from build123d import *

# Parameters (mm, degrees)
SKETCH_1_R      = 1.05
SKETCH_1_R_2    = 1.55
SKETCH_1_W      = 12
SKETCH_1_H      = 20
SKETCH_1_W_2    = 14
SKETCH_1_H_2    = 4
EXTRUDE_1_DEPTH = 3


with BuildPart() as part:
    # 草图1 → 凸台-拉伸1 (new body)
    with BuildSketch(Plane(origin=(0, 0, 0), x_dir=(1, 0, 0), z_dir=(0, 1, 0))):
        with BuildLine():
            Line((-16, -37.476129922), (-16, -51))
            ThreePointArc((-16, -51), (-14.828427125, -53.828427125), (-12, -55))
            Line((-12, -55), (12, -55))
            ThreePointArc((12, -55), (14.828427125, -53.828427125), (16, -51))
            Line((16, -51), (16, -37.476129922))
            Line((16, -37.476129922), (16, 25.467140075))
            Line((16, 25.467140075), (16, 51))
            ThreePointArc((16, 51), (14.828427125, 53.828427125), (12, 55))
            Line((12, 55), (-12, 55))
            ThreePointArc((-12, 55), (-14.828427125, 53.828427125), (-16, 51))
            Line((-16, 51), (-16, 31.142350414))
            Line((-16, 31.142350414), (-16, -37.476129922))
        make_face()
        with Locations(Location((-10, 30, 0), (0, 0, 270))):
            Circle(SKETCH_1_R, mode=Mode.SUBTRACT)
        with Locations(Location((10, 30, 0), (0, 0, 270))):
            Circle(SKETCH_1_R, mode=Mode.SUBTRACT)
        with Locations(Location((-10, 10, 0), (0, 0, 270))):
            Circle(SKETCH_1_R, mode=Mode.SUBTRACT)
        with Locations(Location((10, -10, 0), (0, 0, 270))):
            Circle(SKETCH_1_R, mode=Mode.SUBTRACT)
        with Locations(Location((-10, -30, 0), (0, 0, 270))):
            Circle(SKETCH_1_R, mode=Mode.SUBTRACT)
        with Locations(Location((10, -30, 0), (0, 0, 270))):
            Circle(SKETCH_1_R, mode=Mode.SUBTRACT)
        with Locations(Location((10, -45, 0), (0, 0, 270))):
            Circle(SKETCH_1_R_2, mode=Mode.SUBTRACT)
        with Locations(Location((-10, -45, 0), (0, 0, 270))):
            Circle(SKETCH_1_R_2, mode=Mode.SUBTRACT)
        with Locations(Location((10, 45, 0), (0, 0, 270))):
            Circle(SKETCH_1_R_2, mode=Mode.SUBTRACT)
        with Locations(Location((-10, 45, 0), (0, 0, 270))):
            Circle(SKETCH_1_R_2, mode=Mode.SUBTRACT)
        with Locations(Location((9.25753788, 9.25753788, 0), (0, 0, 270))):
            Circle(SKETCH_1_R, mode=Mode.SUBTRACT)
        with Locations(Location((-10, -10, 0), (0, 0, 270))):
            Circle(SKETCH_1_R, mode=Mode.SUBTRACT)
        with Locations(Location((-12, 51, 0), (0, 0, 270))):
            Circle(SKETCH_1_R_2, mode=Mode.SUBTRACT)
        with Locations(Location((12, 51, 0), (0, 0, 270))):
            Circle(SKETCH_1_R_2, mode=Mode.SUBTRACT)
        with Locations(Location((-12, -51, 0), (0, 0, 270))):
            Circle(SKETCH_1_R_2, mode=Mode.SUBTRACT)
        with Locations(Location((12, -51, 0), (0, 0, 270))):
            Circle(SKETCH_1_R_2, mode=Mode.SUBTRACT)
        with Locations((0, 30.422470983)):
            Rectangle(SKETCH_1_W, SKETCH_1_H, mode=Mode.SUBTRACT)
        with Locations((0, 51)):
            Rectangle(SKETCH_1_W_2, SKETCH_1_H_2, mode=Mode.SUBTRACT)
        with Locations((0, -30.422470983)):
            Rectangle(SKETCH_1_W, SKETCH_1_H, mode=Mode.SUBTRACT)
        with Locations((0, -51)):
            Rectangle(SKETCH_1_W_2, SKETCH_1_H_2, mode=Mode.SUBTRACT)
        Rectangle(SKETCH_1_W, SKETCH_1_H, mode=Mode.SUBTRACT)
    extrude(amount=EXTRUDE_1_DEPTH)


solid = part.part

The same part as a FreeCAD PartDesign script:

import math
import FreeCAD as App
import Part
import Sketcher
from FreeCAD import Vector
Q = App.Units.Quantity

doc = App.newDocument("Part")
body = doc.addObject("PartDesign::Body", "Body")

sketch1 = body.newObject("Sketcher::SketchObject", "Sketch")
sketch1.AttachmentSupport = (doc.getObject("XZ_Plane"), [""])
sketch1.MapMode = "FlatFace"
sketch1.addGeometry([
    Part.ArcOfCircle(Part.Circle(Vector(-12, 51, 0), Vector(0, 0, 1), 4), math.radians(90), math.radians(180)),
    Part.LineSegment(Vector(-12, 55, 0), Vector(12, 55, 0)),
    Part.ArcOfCircle(Part.Circle(Vector(12, 51, 0), Vector(0, 0, 1), 4), math.radians(0), math.radians(90)),
    Part.LineSegment(Vector(16, 51, 0), Vector(16, -51, 0)),
    Part.ArcOfCircle(Part.Circle(Vector(12, -51, 0), Vector(0, 0, 1), 4), math.radians(-90), math.radians(0)),
    Part.LineSegment(Vector(12, -55, 0), Vector(-12, -55, 0)),
    Part.ArcOfCircle(Part.Circle(Vector(-12, -51, 0), Vector(0, 0, 1), 4), math.radians(180), math.radians(270)),
    Part.LineSegment(Vector(-16, -51, 0), Vector(-16, 51, 0)),
    Part.Circle(Vector(-12, 51, 0), Vector(0, 0, 1), 1.6),
    Part.Circle(Vector(-10, 45, 0), Vector(0, 0, 1), 1.6),
    Part.Circle(Vector(-10, 30, 0), Vector(0, 0, 1), 1.1),
    Part.Circle(Vector(-10, 10, 0), Vector(0, 0, 1), 1.1),
    Part.LineSegment(Vector(7, 53, 0), Vector(-7, 53, 0)),
    Part.LineSegment(Vector(-7, 53, 0), Vector(-7, 49, 0)),
    Part.LineSegment(Vector(-7, 49, 0), Vector(7, 49, 0)),
    Part.LineSegment(Vector(7, 49, 0), Vector(7, 53, 0)),
    Part.LineSegment(Vector(6, 40.4, 0), Vector(-6, 40.4, 0)),
    Part.LineSegment(Vector(-6, 40.4, 0), Vector(-6, 20.4, 0)),
    Part.LineSegment(Vector(-6, 20.4, 0), Vector(6, 20.4, 0)),
    Part.LineSegment(Vector(6, 20.4, 0), Vector(6, 40.4, 0)),
    Part.Circle(Vector(10, 45, 0), Vector(0, 0, 1), 1.6),
    Part.Circle(Vector(12, 51, 0), Vector(0, 0, 1), 1.6),
    Part.Circle(Vector(10, 30, 0), Vector(0, 0, 1), 1.1),
    Part.Circle(Vector(10, 10, 0), Vector(0, 0, 1), 1.1),
    Part.Circle(Vector(-10, -10, 0), Vector(0, 0, 1), 1.1),
    Part.Circle(Vector(-10, -30, 0), Vector(0, 0, 1), 1.1),
    Part.Circle(Vector(-12, -51, 0), Vector(0, 0, 1), 1.6),
    Part.Circle(Vector(-10, -45, 0), Vector(0, 0, 1), 1.6),
    Part.LineSegment(Vector(6, 10, 0), Vector(-6, 10, 0)),
    Part.LineSegment(Vector(-6, 10, 0), Vector(-6, -10, 0)),
    Part.LineSegment(Vector(-6, -10, 0), Vector(6, -10, 0)),
    Part.LineSegment(Vector(6, -10, 0), Vector(6, 10, 0)),
    Part.Circle(Vector(9.3, -9.3, 0), Vector(0, 0, 1), 1.1),
    Part.LineSegment(Vector(6, -20.4, 0), Vector(-6, -20.4, 0)),
    Part.LineSegment(Vector(-6, -20.4, 0), Vector(-6, -40.4, 0)),
    Part.LineSegment(Vector(-6, -40.4, 0), Vector(6, -40.4, 0)),
    Part.LineSegment(Vector(6, -40.4, 0), Vector(6, -20.4, 0)),
    Part.LineSegment(Vector(7, -49, 0), Vector(-7, -49, 0)),
    Part.LineSegment(Vector(-7, -49, 0), Vector(-7, -53, 0)),
    Part.LineSegment(Vector(-7, -53, 0), Vector(7, -53, 0)),
    Part.LineSegment(Vector(7, -53, 0), Vector(7, -49, 0)),
    Part.Circle(Vector(10, -30, 0), Vector(0, 0, 1), 1.1),
    Part.Circle(Vector(10, -45, 0), Vector(0, 0, 1), 1.6),
    Part.Circle(Vector(12, -51, 0), Vector(0, 0, 1), 1.6),
], False)
sketch1.addConstraint([
    Sketcher.Constraint("Tangent", 0, 1, 1, 1),
    Sketcher.Constraint("Tangent", 1, 2, 2, 2),
    Sketcher.Constraint("Tangent", 2, 1, 3, 1),
    Sketcher.Constraint("Tangent", 3, 2, 4, 2),
    Sketcher.Constraint("Tangent", 4, 1, 5, 1),
    Sketcher.Constraint("Tangent", 5, 2, 6, 2),
    Sketcher.Constraint("Tangent", 6, 1, 7, 1),
    Sketcher.Constraint("Tangent", 7, 2, 0, 2),
    Sketcher.Constraint("Coincident", 12, 2, 13, 1),
    Sketcher.Constraint("Coincident", 13, 2, 14, 1),
    Sketcher.Constraint("Coincident", 14, 2, 15, 1),
    Sketcher.Constraint("Coincident", 15, 2, 12, 1),
    Sketcher.Constraint("Coincident", 16, 2, 17, 1),
    Sketcher.Constraint("Coincident", 17, 2, 18, 1),
    Sketcher.Constraint("Coincident", 18, 2, 19, 1),
    Sketcher.Constraint("Coincident", 19, 2, 16, 1),
    Sketcher.Constraint("Coincident", 28, 2, 29, 1),
    Sketcher.Constraint("Coincident", 29, 2, 30, 1),
    Sketcher.Constraint("Coincident", 30, 2, 31, 1),
    Sketcher.Constraint("Coincident", 31, 2, 28, 1),
    Sketcher.Constraint("Coincident", 33, 2, 34, 1),
    Sketcher.Constraint("Coincident", 34, 2, 35, 1),
    Sketcher.Constraint("Coincident", 35, 2, 36, 1),
    Sketcher.Constraint("Coincident", 36, 2, 33, 1),
    Sketcher.Constraint("Coincident", 37, 2, 38, 1),
    Sketcher.Constraint("Coincident", 38, 2, 39, 1),
    Sketcher.Constraint("Coincident", 39, 2, 40, 1),
    Sketcher.Constraint("Coincident", 40, 2, 37, 1),
    Sketcher.Constraint("Horizontal", 1),
    Sketcher.Constraint("Vertical", 3),
    Sketcher.Constraint("Horizontal", 5),
    Sketcher.Constraint("Vertical", 7),
    Sketcher.Constraint("Horizontal", 12),
    Sketcher.Constraint("Vertical", 13),
    Sketcher.Constraint("Horizontal", 14),
    Sketcher.Constraint("Vertical", 15),
    Sketcher.Constraint("Horizontal", 16),
    Sketcher.Constraint("Vertical", 17),
    Sketcher.Constraint("Horizontal", 18),
    Sketcher.Constraint("Vertical", 19),
    Sketcher.Constraint("Horizontal", 28),
    Sketcher.Constraint("Vertical", 29),
    Sketcher.Constraint("Horizontal", 30),
    Sketcher.Constraint("Vertical", 31),
    Sketcher.Constraint("Horizontal", 33),
    Sketcher.Constraint("Vertical", 34),
    Sketcher.Constraint("Horizontal", 35),
    Sketcher.Constraint("Vertical", 36),
    Sketcher.Constraint("Horizontal", 37),
    Sketcher.Constraint("Vertical", 38),
    Sketcher.Constraint("Horizontal", 39),
    Sketcher.Constraint("Vertical", 40),
    Sketcher.Constraint("Coincident", 8, 3, 0, 3),
    Sketcher.Constraint("Coincident", 21, 3, 2, 3),
    Sketcher.Constraint("Coincident", 26, 3, 6, 3),
    Sketcher.Constraint("Coincident", 43, 3, 4, 3),
    Sketcher.Constraint("Equal", 0, 2),
    Sketcher.Constraint("Equal", 2, 4),
    Sketcher.Constraint("Equal", 4, 6),
    Sketcher.Constraint("Equal", 8, 9),
    Sketcher.Constraint("Equal", 10, 11),
    Sketcher.Constraint("Equal", 9, 20),
    Sketcher.Constraint("Equal", 20, 21),
    Sketcher.Constraint("Equal", 11, 22),
    Sketcher.Constraint("Equal", 22, 23),
    Sketcher.Constraint("Equal", 23, 24),
    Sketcher.Constraint("Equal", 24, 25),
    Sketcher.Constraint("Equal", 21, 26),
    Sketcher.Constraint("Equal", 26, 27),
    Sketcher.Constraint("Equal", 25, 32),
    Sketcher.Constraint("Equal", 32, 41),
    Sketcher.Constraint("Equal", 27, 42),
    Sketcher.Constraint("Equal", 42, 43),
    Sketcher.Constraint("Symmetric", 0, 3, 4, 3, -1, 1),
    Sketcher.Constraint("Symmetric", 23, 3, 24, 3, -1, 1),
    Sketcher.Constraint("Symmetric", 22, 3, 25, 3, -1, 1),
    Sketcher.Constraint("Symmetric", 20, 3, 27, 3, -1, 1),
    Sketcher.Constraint("Symmetric", 10, 3, 41, 3, -1, 1),
    Sketcher.Constraint("Symmetric", 9, 3, 42, 3, -1, 1),
    Sketcher.Constraint("Symmetric", 28, 2, 30, 2, -1, 1),
    Sketcher.Constraint("Symmetric", 18, 2, 33, 2, -1, 1),
    Sketcher.Constraint("Symmetric", 16, 2, 35, 2, -1, 1),
    Sketcher.Constraint("Symmetric", 14, 2, 37, 2, -1, 1),
    Sketcher.Constraint("Symmetric", 12, 2, 39, 2, -1, 1),
    Sketcher.Constraint("Symmetric", 9, 3, 20, 3, -2),
    Sketcher.Constraint("Symmetric", 10, 3, 22, 3, -2),
    Sketcher.Constraint("Symmetric", 11, 3, 23, 3, -2),
    Sketcher.Constraint("Horizontal", 23, 3, 28, 2),
    Sketcher.Constraint("Vertical", 9, 3, 10, 3),
    Sketcher.Constraint("Vertical", 10, 3, 11, 3),
    Sketcher.Constraint("Vertical", 17, 2, 28, 2),
    Sketcher.Constraint("Vertical", 19, 2, 30, 2),
    Sketcher.Constraint("Vertical", 13, 2, 37, 2),
    Sketcher.Constraint("Equal", 19, 29),
    Sketcher.Constraint("Radius", 0, Q("4 mm")),
    Sketcher.Constraint("Diameter", 8, Q("3.1 mm")),
    Sketcher.Constraint("Diameter", 10, Q("2.1 mm")),
    Sketcher.Constraint("DistanceX", 1, 1, 1, 2, Q("24 mm")),
    Sketcher.Constraint("DistanceX", 12, 2, 12, 1, Q("14 mm")),
    Sketcher.Constraint("DistanceX", 16, 2, 16, 1, Q("12 mm")),
    Sketcher.Constraint("DistanceY", 3, 2, 3, 1, Q("102 mm")),
    Sketcher.Constraint("DistanceY", 13, 2, 13, 1, Q("4 mm")),
    Sketcher.Constraint("DistanceY", 17, 2, 17, 1, Q("20 mm")),
    Sketcher.Constraint("DistanceX", 9, 3, -1, 1, Q("10 mm")),
    Sketcher.Constraint("DistanceY", -1, 1, 9, 3, Q("45 mm")),
    Sketcher.Constraint("DistanceY", -1, 1, 10, 3, Q("30 mm")),
    Sketcher.Constraint("DistanceY", -1, 1, 12, 2, Q("53 mm")),
    Sketcher.Constraint("DistanceY", -1, 1, 16, 2, Q("40.422471 mm")),
    Sketcher.Constraint("DistanceX", -1, 1, 32, 3, Q("9.257538 mm")),
    Sketcher.Constraint("DistanceY", 32, 3, -1, 1, Q("9.257538 mm")),
])
pad1 = body.newObject("PartDesign::Pad", "Pad")
pad1.Profile = sketch1
pad1.Length = 3
pad1.Reversed = True

doc.recompute()
